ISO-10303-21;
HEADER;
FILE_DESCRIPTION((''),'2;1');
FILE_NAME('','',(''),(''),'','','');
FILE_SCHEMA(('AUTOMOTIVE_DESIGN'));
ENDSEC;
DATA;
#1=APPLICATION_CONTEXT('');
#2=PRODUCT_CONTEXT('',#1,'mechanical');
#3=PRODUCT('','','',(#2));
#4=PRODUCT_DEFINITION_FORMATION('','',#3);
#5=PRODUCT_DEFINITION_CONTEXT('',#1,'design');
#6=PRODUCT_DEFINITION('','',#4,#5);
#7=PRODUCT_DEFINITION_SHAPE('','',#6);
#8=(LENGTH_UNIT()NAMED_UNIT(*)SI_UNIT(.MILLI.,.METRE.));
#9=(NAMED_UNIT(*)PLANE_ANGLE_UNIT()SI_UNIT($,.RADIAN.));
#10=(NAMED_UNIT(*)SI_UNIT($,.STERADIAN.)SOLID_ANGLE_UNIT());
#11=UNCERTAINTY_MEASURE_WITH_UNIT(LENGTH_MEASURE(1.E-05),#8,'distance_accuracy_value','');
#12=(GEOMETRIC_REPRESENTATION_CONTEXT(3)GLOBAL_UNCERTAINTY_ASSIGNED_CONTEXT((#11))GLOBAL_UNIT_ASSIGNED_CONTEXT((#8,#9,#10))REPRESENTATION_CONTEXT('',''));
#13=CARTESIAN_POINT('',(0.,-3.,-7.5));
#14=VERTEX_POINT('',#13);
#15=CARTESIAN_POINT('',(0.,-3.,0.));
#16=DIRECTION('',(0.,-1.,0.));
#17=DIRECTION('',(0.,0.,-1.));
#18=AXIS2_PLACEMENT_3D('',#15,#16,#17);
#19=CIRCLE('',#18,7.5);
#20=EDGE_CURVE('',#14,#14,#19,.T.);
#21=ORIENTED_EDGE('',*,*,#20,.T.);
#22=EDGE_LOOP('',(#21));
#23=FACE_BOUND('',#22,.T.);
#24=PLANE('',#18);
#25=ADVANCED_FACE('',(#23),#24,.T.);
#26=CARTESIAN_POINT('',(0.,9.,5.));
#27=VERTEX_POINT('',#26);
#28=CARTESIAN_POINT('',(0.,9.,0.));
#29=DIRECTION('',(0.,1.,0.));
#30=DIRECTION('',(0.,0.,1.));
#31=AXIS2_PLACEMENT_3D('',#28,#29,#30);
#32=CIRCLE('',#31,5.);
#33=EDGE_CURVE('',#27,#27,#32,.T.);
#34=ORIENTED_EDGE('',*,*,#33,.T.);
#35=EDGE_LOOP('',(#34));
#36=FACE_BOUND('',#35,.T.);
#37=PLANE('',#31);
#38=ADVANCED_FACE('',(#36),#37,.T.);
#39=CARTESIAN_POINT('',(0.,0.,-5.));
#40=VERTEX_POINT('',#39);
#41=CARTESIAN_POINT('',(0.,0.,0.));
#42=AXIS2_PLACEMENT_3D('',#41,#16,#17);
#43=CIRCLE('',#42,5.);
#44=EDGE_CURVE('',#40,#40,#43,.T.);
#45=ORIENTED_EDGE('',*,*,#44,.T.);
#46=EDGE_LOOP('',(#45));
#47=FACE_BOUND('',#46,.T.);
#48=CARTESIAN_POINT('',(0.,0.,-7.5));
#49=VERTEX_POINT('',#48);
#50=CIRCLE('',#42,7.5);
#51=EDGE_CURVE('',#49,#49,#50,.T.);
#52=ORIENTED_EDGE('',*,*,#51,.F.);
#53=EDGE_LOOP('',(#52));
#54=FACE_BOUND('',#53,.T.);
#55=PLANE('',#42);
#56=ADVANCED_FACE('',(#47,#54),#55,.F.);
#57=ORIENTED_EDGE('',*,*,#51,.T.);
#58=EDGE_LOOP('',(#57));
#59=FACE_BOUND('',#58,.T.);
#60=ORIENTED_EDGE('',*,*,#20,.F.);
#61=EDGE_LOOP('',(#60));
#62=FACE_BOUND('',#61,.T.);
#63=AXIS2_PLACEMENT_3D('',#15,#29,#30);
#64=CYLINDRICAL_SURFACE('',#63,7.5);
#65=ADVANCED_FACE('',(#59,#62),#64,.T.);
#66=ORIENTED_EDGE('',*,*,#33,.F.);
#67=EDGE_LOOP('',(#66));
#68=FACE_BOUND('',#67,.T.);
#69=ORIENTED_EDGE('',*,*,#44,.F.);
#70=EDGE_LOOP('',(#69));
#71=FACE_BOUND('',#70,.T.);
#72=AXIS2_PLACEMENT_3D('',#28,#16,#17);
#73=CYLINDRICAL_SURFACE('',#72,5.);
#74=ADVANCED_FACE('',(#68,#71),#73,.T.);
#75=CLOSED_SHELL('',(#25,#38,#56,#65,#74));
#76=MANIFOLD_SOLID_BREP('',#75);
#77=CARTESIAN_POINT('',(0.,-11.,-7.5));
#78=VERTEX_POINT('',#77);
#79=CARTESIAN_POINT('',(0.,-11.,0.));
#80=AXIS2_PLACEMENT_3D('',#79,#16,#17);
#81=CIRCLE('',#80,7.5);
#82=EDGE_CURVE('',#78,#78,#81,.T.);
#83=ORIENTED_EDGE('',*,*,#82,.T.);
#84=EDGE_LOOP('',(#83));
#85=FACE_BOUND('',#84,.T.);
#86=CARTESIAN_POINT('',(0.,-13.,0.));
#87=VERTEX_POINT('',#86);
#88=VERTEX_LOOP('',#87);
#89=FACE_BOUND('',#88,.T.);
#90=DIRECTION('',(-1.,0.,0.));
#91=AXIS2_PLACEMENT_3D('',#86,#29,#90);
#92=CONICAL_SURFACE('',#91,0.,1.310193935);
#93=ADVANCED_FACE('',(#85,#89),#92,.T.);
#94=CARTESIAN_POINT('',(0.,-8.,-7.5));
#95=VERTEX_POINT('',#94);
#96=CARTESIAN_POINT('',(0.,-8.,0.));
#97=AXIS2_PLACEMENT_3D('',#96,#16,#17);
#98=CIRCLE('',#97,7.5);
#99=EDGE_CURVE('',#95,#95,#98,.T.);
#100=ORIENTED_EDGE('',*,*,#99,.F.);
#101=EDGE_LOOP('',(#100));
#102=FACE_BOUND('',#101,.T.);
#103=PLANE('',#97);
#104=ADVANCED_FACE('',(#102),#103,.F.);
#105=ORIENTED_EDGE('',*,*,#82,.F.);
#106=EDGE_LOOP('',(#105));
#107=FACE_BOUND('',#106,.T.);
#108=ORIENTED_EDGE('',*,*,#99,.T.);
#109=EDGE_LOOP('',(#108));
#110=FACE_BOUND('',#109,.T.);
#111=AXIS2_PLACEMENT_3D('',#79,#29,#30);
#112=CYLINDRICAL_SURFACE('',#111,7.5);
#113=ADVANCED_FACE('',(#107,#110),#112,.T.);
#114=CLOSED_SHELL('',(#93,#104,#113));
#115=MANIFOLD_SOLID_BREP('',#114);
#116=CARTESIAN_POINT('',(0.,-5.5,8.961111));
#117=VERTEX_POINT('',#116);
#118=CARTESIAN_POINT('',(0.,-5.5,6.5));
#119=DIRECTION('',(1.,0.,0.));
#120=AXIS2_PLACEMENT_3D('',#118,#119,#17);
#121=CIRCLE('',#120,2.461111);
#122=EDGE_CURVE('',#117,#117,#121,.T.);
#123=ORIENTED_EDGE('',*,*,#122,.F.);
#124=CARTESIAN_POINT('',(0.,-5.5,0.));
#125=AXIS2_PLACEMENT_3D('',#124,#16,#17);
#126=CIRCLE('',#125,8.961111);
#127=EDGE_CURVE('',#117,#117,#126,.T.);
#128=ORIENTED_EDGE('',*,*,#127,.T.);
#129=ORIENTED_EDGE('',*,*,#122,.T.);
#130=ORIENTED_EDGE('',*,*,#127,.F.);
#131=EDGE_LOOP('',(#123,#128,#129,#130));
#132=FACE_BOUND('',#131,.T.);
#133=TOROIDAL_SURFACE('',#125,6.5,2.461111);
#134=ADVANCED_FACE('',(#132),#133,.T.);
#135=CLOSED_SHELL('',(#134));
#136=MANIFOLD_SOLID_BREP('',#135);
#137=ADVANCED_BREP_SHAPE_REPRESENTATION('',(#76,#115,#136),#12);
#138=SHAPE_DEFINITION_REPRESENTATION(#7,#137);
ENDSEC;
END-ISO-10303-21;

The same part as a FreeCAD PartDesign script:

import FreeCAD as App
import Part
import Sketcher
from FreeCAD import Vector


def add_polygon(sketch, points):
    """Adds a closed chain of lines whose ends are joined by coincident constraints."""
    first, n = sketch.GeometryCount, len(points)
    for a, b in zip(points, points[1:] + points[:1]):
        sketch.addGeometry(Part.LineSegment(App.Vector(*a, 0), App.Vector(*b, 0)), False)
    for i in range(n):
        sketch.addConstraint(Sketcher.Constraint("Coincident", first + i, 2, first + (i + 1) % n, 1))

doc = App.newDocument("Part")
body = doc.addObject("PartDesign::Body", "Body")

sketch1 = body.newObject("Sketcher::SketchObject", "Sketch")
sketch1.AttachmentSupport = (doc.getObject("XZ_Plane"), [""])
sketch1.MapMode = "FlatFace"
sketch1.addGeometry(Part.Circle(Vector(0, 0, 0), Vector(0, 0, 1), 5), False)
sketch1.addConstraint([
    Sketcher.Constraint("Coincident", 0, 3, -1, 1),
    Sketcher.Constraint("Diameter", 0, 10.0),
])
pad1 = body.newObject("PartDesign::Pad", "Pad")
pad1.Profile = sketch1
pad1.Length = 9
pad1.Reversed = True

sketch2 = body.newObject("Sketcher::SketchObject", "Sketch001")
sketch2.AttachmentSupport = (doc.getObject("XZ_Plane"), [""])
sketch2.MapMode = "FlatFace"
sketch2.addGeometry(Part.Circle(Vector(0, 0, 0), Vector(0, 0, 1), 7.5), False)
sketch2.addConstraint([
    Sketcher.Constraint("Coincident", 0, 3, -1, 1),
    Sketcher.Constraint("Diameter", 0, 15.0),
])
pad2 = body.newObject("PartDesign::Pad", "Pad001")
pad2.Profile = sketch2
pad2.Length = 3
body2 = doc.addObject("PartDesign::Body", "Body001")

sketch3 = body2.newObject("Sketcher::SketchObject", "Sketch002")
sketch3.AttachmentSupport = (doc.getObject("YZ_Plane001"), [""])
sketch3.MapMode = "FlatFace"
sketch3.addGeometry(Part.Circle(Vector(-5.5, 6.5, 0), Vector(0, 0, 1), 2.461111), False)
sketch3.addConstraint([
    Sketcher.Constraint("DistanceX", 0, 3, -1, 1, 5.5),
    Sketcher.Constraint("DistanceY", -1, 1, 0, 3, 6.5),
    Sketcher.Constraint("Diameter", 0, 4.922221),
])

sketch4 = body2.newObject("Sketcher::SketchObject", "Sketch003")
sketch4.AttachmentSupport = (doc.getObject("XZ_Plane001"), [""])
sketch4.MapMode = "FlatFace"
sketch4.AttachmentOffset = App.Placement(Vector(0, 0, 5.5), App.Rotation())
sketch4.addGeometry(Part.Circle(Vector(0, 0, 0), Vector(0, 0, 1), 6.5), False)
sketch4.addConstraint([
    Sketcher.Constraint("Coincident", 0, 3, -1, 1),
    Sketcher.Constraint("Diameter", 0, 13.0),
])
doc.recompute()

additivepipe = body2.newObject("PartDesign::AdditivePipe", "AdditivePipe")
additivepipe.Profile = sketch3
additivepipe.Spine = (sketch4, ["Edge1"])
body3 = doc.addObject("PartDesign::Body", "Body002")

sketch5 = body3.newObject("Sketcher::SketchObject", "Sketch004")
sketch5.AttachmentSupport = (doc.getObject("XZ_Plane002"), [""])
sketch5.MapMode = "FlatFace"
sketch5.AttachmentOffset = App.Placement(Vector(0, 0, 8), App.Rotation())
sketch5.addGeometry(Part.Circle(Vector(0, 0, 0), Vector(0, 0, 1), 7.5), False)
sketch5.addConstraint([
    Sketcher.Constraint("Coincident", 0, 3, -1, 1),
    Sketcher.Constraint("Diameter", 0, 15.0),
])
pad3 = body3.newObject("PartDesign::Pad", "Pad002")
pad3.Profile = sketch5
pad3.Length = 3

sketch6 = body3.newObject("Sketcher::SketchObject", "Sketch005")
sketch6.AttachmentSupport = (doc.getObject("XY_Plane002"), [""])
sketch6.MapMode = "FlatFace"
add_polygon(sketch6, [(0, -11), (0, -13), (7.5, -11)])
sketch6.addConstraint([
    Sketcher.Constraint("Vertical", 0),
    Sketcher.Constraint("Horizontal", 2),
    Sketcher.Constraint("PointOnObject", 0, 2, -2),
    Sketcher.Constraint("DistanceY", 0, 2, 0, 1, 2.0),
    Sketcher.Constraint("DistanceX", 2, 2, 2, 1, 7.5),
    Sketcher.Constraint("DistanceY", 0, 2, -1, 1, 13.0),
])
revolution = body3.newObject("PartDesign::Revolution", "Revolution")
revolution.Profile = sketch6
revolution.ReferenceAxis = (sketch6, ["V_Axis"])
revolution.Angle = 360

doc.recompute()
